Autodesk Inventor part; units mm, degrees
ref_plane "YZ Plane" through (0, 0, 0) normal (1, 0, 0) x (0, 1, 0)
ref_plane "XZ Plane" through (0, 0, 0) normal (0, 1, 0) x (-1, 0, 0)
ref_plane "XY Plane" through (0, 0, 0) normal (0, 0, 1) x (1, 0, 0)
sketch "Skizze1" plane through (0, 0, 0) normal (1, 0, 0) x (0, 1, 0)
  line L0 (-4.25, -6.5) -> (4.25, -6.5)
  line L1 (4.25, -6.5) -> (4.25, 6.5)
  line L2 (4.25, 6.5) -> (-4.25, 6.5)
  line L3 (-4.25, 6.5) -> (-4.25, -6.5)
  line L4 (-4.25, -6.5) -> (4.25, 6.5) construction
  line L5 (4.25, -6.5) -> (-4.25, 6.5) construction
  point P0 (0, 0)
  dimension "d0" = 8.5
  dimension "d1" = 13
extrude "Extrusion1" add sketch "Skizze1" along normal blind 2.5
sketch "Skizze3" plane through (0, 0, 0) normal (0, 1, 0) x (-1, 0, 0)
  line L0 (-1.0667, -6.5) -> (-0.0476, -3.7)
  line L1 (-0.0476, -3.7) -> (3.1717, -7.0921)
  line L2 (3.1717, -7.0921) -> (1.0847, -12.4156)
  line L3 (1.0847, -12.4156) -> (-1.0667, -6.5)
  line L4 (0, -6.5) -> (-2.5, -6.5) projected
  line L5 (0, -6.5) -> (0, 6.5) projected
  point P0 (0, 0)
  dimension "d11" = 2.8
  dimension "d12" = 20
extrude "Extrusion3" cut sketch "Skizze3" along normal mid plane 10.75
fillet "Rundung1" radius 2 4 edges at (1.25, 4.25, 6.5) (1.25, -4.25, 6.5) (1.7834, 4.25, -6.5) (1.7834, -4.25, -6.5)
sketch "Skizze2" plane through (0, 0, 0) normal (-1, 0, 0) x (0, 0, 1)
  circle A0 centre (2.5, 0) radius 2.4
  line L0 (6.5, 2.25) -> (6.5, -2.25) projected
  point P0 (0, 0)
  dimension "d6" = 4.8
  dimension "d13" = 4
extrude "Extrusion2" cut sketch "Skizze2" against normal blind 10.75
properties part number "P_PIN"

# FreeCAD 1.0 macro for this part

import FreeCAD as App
import Part
import Sketcher
Q = App.Units.Quantity


def edges_at(feature, points):
    """Names of the edges that pass closest to the given points."""
    edges = feature.Shape.Edges
    near = lambda p: min(range(len(edges)), key=lambda i: edges[i].distToShape(Part.Vertex(*p))[0])
    return sorted({f"Edge{near(p) + 1}" for p in points})

doc = App.newDocument("Part")
body = doc.addObject("PartDesign::Body", "Body")

# Sketch on YZ plane
sketch1 = body.newObject("Sketcher::SketchObject", "Sketch")
sketch1.AttachmentSupport = (doc.getObject("YZ_Plane"), [""])
sketch1.MapMode = "FlatFace"
sketch1.addGeometry(Part.LineSegment(App.Vector(-4, 6, 0), App.Vector(-4, -6, 0)), False)
sketch1.addGeometry(Part.LineSegment(App.Vector(-4, -6, 0), App.Vector(4, -6, 0)), False)
sketch1.addGeometry(Part.LineSegment(App.Vector(4, -6, 0), App.Vector(4, 6, 0)), False)
sketch1.addGeometry(Part.LineSegment(App.Vector(4, 6, 0), App.Vector(-4, 6, 0)), False)
sketch1.addConstraint(Sketcher.Constraint("Coincident", 0, 2, 1, 1))
sketch1.addConstraint(Sketcher.Constraint("Coincident", 1, 2, 2, 1))
sketch1.addConstraint(Sketcher.Constraint("Coincident", 2, 2, 3, 1))
sketch1.addConstraint(Sketcher.Constraint("Coincident", 3, 2, 0, 1))
sketch1.addConstraint(Sketcher.Constraint("Vertical", 0))
sketch1.addConstraint(Sketcher.Constraint("Horizontal", 1))
sketch1.addConstraint(Sketcher.Constraint("Vertical", 2))
sketch1.addConstraint(Sketcher.Constraint("Horizontal", 3))
sketch1.addConstraint(Sketcher.Constraint("Symmetric", 0, 2, 2, 2, -1, 1))
sketch1.addConstraint(Sketcher.Constraint("DistanceY", 0, 2, 0, 1, Q("13 mm")))
sketch1.addConstraint(Sketcher.Constraint("DistanceX", 1, 1, 1, 2, Q("8.5 mm")))
pad1 = body.newObject("PartDesign::Pad", "Pad")
pad1.Profile = sketch1
pad1.Length = 2.5

# Sketch on XZ plane
sketch2 = body.newObject("Sketcher::SketchObject", "Sketch001")
sketch2.AttachmentSupport = (doc.getObject("XZ_Plane"), [""])
sketch2.MapMode = "FlatFace"
sketch2.addGeometry(Part.LineSegment(App.Vector(-3.2, -7.1, 0), App.Vector(0, -3.7, 0)), False)
sketch2.addGeometry(Part.LineSegment(App.Vector(0, -3.7, 0), App.Vector(1.1, -6.5, 0)), False)
sketch2.addGeometry(Part.LineSegment(App.Vector(1.1, -6.5, 0), App.Vector(-1.1, -12.4, 0)), False)
sketch2.addGeometry(Part.LineSegment(App.Vector(-1.1, -12.4, 0), App.Vector(-3.2, -7.1, 0)), False)
sketch2.addConstraint(Sketcher.Constraint("Coincident", 0, 2, 1, 1))
sketch2.addConstraint(Sketcher.Constraint("Coincident", 1, 2, 2, 1))
sketch2.addConstraint(Sketcher.Constraint("Coincident", 2, 2, 3, 1))
sketch2.addConstraint(Sketcher.Constraint("Coincident", 3, 2, 0, 1))
sketch2.addConstraint(Sketcher.Constraint("DistanceY", 1, 2, 0, 2, Q("2.8 mm")))
sketch2.addConstraint(Sketcher.Constraint("Angle", 1, Q("-70.0003 deg")))
sketch2.addConstraint(Sketcher.Constraint("DistanceY", 0, 2, -1, 1, Q("3.7 mm")))
sketch2.addConstraint(Sketcher.Constraint("Distance", 3, Q("5.718 mm")))
sketch2.addConstraint(Sketcher.Constraint("DistanceY", 3, 2, -1, 1, Q("7.092 mm")))
sketch2.addConstraint(Sketcher.Constraint("DistanceX", 3, 2, 2, 2, Q("2.087 mm")))
sketch2.addConstraint(Sketcher.Constraint("Distance", 0, Q("4.6766 mm")))
sketch2.addConstraint(Sketcher.Constraint("DistanceX", -1, 1, 0, 2, Q("0.0476 mm")))
pocket1 = body.newObject("PartDesign::Pocket", "Pocket")
pocket1.Profile = sketch2
pocket1.Length = 10.75
pocket1.Midplane = True
doc.recompute()

fillet = body.newObject("PartDesign::Fillet", "Fillet")
fillet.Base = (pocket1, edges_at(pocket1, [
    (1.25, 4.25, 6.5),
    (1.25, -4.25, 6.5),
    (1.783, 4.25, -6.5),
    (1.783, -4.25, -6.5),
]))
fillet.Radius = 2

# Sketch on YZ plane
sketch3 = body.newObject("Sketcher::SketchObject", "Sketch002")
sketch3.AttachmentSupport = (doc.getObject("YZ_Plane"), [""])
sketch3.MapMode = "FlatFace"
sketch3.addGeometry(Part.Circle(App.Vector(0, 2.5, 0), App.Vector(0, 0, 1), 2.4), False)
sketch3.addConstraint(Sketcher.Constraint("PointOnObject", 0, 3, -2))
sketch3.addConstraint(Sketcher.Constraint("Diameter", 0, Q("4.8 mm")))
sketch3.addConstraint(Sketcher.Constraint("DistanceY", -1, 1, 0, 3, Q("2.5 mm")))
pocket2 = body.newObject("PartDesign::Pocket", "Pocket001")
pocket2.Profile = sketch3
pocket2.Length = 10.75
pocket2.Reversed = True

doc.recompute()
